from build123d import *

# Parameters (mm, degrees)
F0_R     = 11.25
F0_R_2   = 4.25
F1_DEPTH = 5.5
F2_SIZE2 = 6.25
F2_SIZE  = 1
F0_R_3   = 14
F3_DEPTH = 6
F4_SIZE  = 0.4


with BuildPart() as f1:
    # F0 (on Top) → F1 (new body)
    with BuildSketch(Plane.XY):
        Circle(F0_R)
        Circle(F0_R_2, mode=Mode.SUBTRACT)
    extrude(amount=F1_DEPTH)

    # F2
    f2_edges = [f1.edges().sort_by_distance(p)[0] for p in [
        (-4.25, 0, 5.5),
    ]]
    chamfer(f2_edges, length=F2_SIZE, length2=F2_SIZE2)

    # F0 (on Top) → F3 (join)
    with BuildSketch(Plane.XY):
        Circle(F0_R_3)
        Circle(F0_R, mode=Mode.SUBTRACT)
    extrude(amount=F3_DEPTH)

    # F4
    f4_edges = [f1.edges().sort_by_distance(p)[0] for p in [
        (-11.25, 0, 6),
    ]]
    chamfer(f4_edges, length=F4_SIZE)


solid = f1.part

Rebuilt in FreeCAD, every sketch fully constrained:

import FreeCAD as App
import Part
import Sketcher

V = App.Vector


def edges_at(feature, points):
    """Names of the edges that pass closest to the given points."""
    edges = feature.Shape.Edges
    near = lambda p: min(range(len(edges)), key=lambda i: edges[i].distToShape(Part.Vertex(*p))[0])
    return sorted({f"Edge{near(p) + 1}" for p in points})

doc = App.newDocument("Part")
body = doc.addObject("PartDesign::Body", "Body")

# Sketch on XY plane
sketch1 = doc.addObject("Sketcher::SketchObject", "Sketch")
body.addObject(sketch1)
sketch1.AttachmentSupport = (doc.XY_Plane, [""])
sketch1.MapMode = "FlatFace"
sketch1.addGeometry(Part.Circle(V(0, 0, 0), V(0, 0, 1), 11.2), False)
sketch1.addGeometry(Part.Circle(V(0, 0, 0), V(0, 0, 1), 4.2), False)
sketch1.addConstraint(Sketcher.Constraint("Coincident", 0, 3, -1, 1))
sketch1.addConstraint(Sketcher.Constraint("Coincident", 1, 3, -1, 1))
sketch1.addConstraint(Sketcher.Constraint("Diameter", 0, 22.5))
sketch1.addConstraint(Sketcher.Constraint("Diameter", 1, 8.5))
pad1 = doc.addObject("PartDesign::Pad", "Pad")
body.addObject(pad1)
pad1.Profile = sketch1
pad1.Length = 5.5
doc.recompute()

chamfer = doc.addObject("PartDesign::Chamfer", "Chamfer")
body.addObject(chamfer)
chamfer.Base = (pad1, edges_at(pad1, [(-4.25, 0, 5.5)]))
chamfer.ChamferType = "Two distances"
chamfer.Size = 1
chamfer.Size2 = 6.25

# Sketch on XY plane
sketch2 = doc.addObject("Sketcher::SketchObject", "Sketch001")
body.addObject(sketch2)
sketch2.AttachmentSupport = (doc.XY_Plane, [""])
sketch2.MapMode = "FlatFace"
sketch2.addGeometry(Part.Circle(V(0, 0, 0), V(0, 0, 1), 14), False)
sketch2.addGeometry(Part.Circle(V(0, 0, 0), V(0, 0, 1), 11), False)
sketch2.addConstraint(Sketcher.Constraint("Coincident", 0, 3, -1, 1))
sketch2.addConstraint(Sketcher.Constraint("Coincident", 1, 3, -1, 1))
sketch2.addConstraint(Sketcher.Constraint("Diameter", 0, 28.0))
sketch2.addConstraint(Sketcher.Constraint("Diameter", 1, 22.5))
pad2 = doc.addObject("PartDesign::Pad", "Pad001")
body.addObject(pad2)
pad2.Profile = sketch2
pad2.Length = 6
doc.recompute()

chamfer2 = doc.addObject("PartDesign::Chamfer", "Chamfer001")
body.addObject(chamfer2)
chamfer2.Base = (pad2, edges_at(pad2, [(-11.25, 0, 6)]))
chamfer2.Size = 0.4

doc.recompute()
